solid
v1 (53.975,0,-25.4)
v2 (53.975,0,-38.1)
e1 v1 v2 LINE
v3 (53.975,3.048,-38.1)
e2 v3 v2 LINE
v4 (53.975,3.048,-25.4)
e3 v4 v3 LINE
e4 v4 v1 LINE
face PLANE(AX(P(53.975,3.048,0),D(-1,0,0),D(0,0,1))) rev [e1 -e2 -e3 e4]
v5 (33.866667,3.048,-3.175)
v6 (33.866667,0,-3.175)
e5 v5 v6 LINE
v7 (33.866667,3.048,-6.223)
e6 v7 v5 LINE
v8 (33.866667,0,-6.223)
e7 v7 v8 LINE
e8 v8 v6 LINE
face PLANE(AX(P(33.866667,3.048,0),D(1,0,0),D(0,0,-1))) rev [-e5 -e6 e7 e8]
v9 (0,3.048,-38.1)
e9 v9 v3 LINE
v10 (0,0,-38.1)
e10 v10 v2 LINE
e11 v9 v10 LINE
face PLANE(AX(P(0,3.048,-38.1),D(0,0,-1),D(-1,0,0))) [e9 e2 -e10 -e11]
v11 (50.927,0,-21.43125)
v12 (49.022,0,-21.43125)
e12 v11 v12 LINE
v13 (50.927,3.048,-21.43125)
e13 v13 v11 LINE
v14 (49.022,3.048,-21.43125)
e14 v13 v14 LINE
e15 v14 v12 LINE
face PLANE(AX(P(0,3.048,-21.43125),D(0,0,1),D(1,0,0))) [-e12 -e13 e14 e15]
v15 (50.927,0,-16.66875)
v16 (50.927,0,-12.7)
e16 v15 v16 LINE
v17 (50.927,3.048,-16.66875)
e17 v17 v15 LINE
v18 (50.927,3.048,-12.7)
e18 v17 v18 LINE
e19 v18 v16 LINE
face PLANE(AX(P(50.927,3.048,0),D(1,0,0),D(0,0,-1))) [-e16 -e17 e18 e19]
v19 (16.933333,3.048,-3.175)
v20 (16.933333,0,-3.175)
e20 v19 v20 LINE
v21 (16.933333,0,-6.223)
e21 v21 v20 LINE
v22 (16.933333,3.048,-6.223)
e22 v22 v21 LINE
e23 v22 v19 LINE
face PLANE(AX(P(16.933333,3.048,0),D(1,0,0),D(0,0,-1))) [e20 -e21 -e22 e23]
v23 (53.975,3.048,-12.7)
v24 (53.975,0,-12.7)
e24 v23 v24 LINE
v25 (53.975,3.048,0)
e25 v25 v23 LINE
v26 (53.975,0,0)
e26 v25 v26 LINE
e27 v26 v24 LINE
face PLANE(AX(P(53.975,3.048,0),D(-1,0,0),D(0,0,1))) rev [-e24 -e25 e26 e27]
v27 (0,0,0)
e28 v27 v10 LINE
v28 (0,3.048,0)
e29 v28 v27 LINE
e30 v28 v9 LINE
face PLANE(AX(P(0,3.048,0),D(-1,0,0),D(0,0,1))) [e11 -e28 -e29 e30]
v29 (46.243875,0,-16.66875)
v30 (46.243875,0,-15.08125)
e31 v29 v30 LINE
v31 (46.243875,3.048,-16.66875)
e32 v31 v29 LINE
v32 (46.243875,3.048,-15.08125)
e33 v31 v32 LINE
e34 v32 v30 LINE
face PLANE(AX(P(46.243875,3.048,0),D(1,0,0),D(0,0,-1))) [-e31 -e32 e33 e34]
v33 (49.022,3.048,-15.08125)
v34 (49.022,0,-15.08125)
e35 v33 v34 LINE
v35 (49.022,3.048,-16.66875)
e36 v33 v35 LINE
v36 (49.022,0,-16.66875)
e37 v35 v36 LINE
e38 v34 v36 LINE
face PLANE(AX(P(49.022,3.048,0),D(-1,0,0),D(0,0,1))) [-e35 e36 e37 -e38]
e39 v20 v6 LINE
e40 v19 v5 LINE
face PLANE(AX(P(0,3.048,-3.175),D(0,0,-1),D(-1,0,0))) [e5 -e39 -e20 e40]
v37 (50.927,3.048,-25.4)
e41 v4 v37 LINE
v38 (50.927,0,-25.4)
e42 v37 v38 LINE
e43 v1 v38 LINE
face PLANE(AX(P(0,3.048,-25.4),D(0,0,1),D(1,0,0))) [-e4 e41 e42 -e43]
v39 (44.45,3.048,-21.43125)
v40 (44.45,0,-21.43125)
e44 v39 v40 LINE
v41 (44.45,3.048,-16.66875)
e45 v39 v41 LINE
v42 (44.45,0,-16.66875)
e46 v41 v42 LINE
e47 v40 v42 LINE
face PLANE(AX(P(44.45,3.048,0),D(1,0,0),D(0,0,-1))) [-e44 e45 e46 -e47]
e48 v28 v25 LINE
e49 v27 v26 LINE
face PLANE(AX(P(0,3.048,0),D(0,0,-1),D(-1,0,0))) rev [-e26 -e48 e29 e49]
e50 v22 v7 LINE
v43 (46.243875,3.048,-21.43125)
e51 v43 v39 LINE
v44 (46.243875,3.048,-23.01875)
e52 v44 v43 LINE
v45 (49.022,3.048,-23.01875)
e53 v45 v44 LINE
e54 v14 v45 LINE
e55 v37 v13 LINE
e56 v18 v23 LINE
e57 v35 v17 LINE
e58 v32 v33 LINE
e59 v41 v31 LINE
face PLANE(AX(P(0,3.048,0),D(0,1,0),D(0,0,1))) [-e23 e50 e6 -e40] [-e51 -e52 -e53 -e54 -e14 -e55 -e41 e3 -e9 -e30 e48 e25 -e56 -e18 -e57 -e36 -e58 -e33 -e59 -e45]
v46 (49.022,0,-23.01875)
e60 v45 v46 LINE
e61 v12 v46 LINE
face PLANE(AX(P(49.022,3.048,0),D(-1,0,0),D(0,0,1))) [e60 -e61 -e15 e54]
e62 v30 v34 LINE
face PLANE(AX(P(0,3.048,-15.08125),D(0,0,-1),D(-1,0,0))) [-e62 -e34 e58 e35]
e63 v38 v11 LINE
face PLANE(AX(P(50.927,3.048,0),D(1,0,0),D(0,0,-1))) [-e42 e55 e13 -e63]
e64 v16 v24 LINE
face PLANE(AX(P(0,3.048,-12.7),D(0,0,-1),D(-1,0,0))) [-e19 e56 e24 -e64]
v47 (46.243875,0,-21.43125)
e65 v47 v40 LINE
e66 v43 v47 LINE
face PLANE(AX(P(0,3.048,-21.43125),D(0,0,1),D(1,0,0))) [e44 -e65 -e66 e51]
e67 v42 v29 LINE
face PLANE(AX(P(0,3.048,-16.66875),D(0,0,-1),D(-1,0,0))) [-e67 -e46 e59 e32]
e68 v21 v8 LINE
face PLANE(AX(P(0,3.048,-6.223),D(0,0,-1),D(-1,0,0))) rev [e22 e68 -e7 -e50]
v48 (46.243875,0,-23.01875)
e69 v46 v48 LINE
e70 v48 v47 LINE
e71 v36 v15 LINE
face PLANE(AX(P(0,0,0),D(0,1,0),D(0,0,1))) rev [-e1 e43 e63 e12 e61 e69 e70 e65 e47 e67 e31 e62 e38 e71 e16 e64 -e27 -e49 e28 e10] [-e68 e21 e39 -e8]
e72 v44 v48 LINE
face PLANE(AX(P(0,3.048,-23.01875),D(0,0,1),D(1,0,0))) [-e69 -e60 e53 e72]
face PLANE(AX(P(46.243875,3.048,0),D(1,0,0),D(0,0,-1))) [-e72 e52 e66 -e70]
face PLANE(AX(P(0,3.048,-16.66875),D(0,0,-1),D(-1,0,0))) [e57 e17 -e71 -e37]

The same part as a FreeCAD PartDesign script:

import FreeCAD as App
import Part
import Sketcher
from FreeCAD import Vector
Q = App.Units.Quantity


def add_polygon(sketch, points):
    """Adds a closed chain of lines whose ends are joined by coincident constraints."""
    first, n = sketch.GeometryCount, len(points)
    for a, b in zip(points, points[1:] + points[:1]):
        sketch.addGeometry(Part.LineSegment(App.Vector(*a, 0), App.Vector(*b, 0)), False)
    for i in range(n):
        sketch.addConstraint(Sketcher.Constraint("Coincident", first + i, 2, first + (i + 1) % n, 1))

doc = App.newDocument("Part")
params = doc.addObject("Spreadsheet::Sheet", "Params")
for row, (alias, value) in enumerate([
    ("sketch1_height", "0.5 in"),
    ("sketch1_height2", "1.5 in"),
    ("sketch1_width", "0.12 in"),
    ("sketch1_width2", "2.125 in"),
    ("sketch1_width3", "0.075 in"),
    ("pad1_length", "0.12 in"),
], start=1):
    params.set(f"A{row}", alias)
    params.set(f"B{row}", "=" + value)
    params.setAlias(f"B{row}", alias)

body = doc.addObject("PartDesign::Body", "Body")

# Sketch on XZ plane
sketch1 = body.newObject("Sketcher::SketchObject", "Sketch")
sketch1.AttachmentSupport = (doc.getObject("XZ_Plane"), [""])
sketch1.MapMode = "FlatFace"
add_polygon(sketch1, [(50.9, -25.4), (54, -25.4), (54, -38.1), (0, -38.1), (0, 0), (54, 0), (54, -12.7), (50.9, -12.7), (50.9, -16.7), (49, -16.7), (49, -15.1), (46.2, -15.1), (46.2, -16.7), (44.5, -16.7), (44.5, -21.4), (46.2, -21.4), (46.2, -23), (49, -23), (49, -21.4), (50.9, -21.4)])  # lines 0-19
add_polygon(sketch1, [(16.9, -3.2), (16.9, -6.2), (33.9, -6.2), (33.9, -3.2)])  # lines 20-23
sketch1.addConstraint([
    Sketcher.Constraint("Horizontal", 0),
    Sketcher.Constraint("Vertical", 1),
    Sketcher.Constraint("Horizontal", 2),
    Sketcher.Constraint("Vertical", 3),
    Sketcher.Constraint("Horizontal", 4),
    Sketcher.Constraint("Vertical", 5),
    Sketcher.Constraint("Horizontal", 6),
    Sketcher.Constraint("Vertical", 7),
    Sketcher.Constraint("Horizontal", 8),
    Sketcher.Constraint("Vertical", 9),
    Sketcher.Constraint("Horizontal", 10),
    Sketcher.Constraint("Vertical", 11),
    Sketcher.Constraint("Horizontal", 12),
    Sketcher.Constraint("Vertical", 13),
    Sketcher.Constraint("Horizontal", 14),
    Sketcher.Constraint("Vertical", 15),
    Sketcher.Constraint("Horizontal", 16),
    Sketcher.Constraint("Vertical", 17),
    Sketcher.Constraint("Horizontal", 18),
    Sketcher.Constraint("Vertical", 19),
    Sketcher.Constraint("Vertical", 20),
    Sketcher.Constraint("Horizontal", 21),
    Sketcher.Constraint("Vertical", 22),
    Sketcher.Constraint("Horizontal", 23),
    Sketcher.Constraint("Coincident", 3, 2, -1, 1),
    Sketcher.Constraint("Horizontal", 8, 2, 11, 2),
    Sketcher.Constraint("Horizontal", 14, 2, 17, 2),
    Sketcher.Constraint("Vertical", 1, 2, 4, 2),
    Sketcher.Constraint("Vertical", 11, 2, 14, 2),
    Sketcher.Constraint("Vertical", 9, 2, 16, 2),
    Sketcher.Constraint("Vertical", 7, 2, 18, 2),
    Sketcher.Constraint("Equal", 1, 5),
    Sketcher.Constraint("Equal", 11, 15),
    Sketcher.Constraint("Equal", 7, 19),
    Sketcher.Constraint("Equal", 6, 20),
    Sketcher.Constraint("DistanceY", 1, 2, 1, 1, Q("0.5 in")),
    Sketcher.Constraint("DistanceY", 3, 1, 3, 2, Q("1.5 in")),
    Sketcher.Constraint("DistanceX", 0, 1, 0, 2, Q("0.12 in")),
    Sketcher.Constraint("DistanceX", 2, 2, 2, 1, Q("2.125 in")),
    Sketcher.Constraint("DistanceX", 8, 2, 8, 1, Q("0.075 in")),
    Sketcher.Constraint("DistanceX", 10, 2, 10, 1, Q("0.109375 in")),
    Sketcher.Constraint("DistanceY", 7, 2, 7, 1, Q("0.15625 in")),
    Sketcher.Constraint("DistanceY", 9, 1, 9, 2, Q("0.0625 in")),
    Sketcher.Constraint("DistanceX", -1, 1, 12, 2, Q("1.75 in")),
    Sketcher.Constraint("DistanceY", 20, 2, -1, 1, Q("0.245 in")),
    Sketcher.Constraint("DistanceX", 21, 1, 21, 2, Q("16.933333 mm")),
    Sketcher.Constraint("DistanceX", 20, 2, 10, 2, Q("29.310542 mm")),
])
sketch1.setExpression("Constraints[59]", "Params.sketch1_height")
sketch1.setExpression("Constraints[60]", "Params.sketch1_height2")
sketch1.setExpression("Constraints[61]", "Params.sketch1_width")
sketch1.setExpression("Constraints[62]", "Params.sketch1_width2")
sketch1.setExpression("Constraints[63]", "Params.sketch1_width3")
pad1 = body.newObject("PartDesign::Pad", "Pad")
pad1.Profile = sketch1
pad1.setExpression("Length", "Params.pad1_length")
pad1.Reversed = True

doc.recompute()
